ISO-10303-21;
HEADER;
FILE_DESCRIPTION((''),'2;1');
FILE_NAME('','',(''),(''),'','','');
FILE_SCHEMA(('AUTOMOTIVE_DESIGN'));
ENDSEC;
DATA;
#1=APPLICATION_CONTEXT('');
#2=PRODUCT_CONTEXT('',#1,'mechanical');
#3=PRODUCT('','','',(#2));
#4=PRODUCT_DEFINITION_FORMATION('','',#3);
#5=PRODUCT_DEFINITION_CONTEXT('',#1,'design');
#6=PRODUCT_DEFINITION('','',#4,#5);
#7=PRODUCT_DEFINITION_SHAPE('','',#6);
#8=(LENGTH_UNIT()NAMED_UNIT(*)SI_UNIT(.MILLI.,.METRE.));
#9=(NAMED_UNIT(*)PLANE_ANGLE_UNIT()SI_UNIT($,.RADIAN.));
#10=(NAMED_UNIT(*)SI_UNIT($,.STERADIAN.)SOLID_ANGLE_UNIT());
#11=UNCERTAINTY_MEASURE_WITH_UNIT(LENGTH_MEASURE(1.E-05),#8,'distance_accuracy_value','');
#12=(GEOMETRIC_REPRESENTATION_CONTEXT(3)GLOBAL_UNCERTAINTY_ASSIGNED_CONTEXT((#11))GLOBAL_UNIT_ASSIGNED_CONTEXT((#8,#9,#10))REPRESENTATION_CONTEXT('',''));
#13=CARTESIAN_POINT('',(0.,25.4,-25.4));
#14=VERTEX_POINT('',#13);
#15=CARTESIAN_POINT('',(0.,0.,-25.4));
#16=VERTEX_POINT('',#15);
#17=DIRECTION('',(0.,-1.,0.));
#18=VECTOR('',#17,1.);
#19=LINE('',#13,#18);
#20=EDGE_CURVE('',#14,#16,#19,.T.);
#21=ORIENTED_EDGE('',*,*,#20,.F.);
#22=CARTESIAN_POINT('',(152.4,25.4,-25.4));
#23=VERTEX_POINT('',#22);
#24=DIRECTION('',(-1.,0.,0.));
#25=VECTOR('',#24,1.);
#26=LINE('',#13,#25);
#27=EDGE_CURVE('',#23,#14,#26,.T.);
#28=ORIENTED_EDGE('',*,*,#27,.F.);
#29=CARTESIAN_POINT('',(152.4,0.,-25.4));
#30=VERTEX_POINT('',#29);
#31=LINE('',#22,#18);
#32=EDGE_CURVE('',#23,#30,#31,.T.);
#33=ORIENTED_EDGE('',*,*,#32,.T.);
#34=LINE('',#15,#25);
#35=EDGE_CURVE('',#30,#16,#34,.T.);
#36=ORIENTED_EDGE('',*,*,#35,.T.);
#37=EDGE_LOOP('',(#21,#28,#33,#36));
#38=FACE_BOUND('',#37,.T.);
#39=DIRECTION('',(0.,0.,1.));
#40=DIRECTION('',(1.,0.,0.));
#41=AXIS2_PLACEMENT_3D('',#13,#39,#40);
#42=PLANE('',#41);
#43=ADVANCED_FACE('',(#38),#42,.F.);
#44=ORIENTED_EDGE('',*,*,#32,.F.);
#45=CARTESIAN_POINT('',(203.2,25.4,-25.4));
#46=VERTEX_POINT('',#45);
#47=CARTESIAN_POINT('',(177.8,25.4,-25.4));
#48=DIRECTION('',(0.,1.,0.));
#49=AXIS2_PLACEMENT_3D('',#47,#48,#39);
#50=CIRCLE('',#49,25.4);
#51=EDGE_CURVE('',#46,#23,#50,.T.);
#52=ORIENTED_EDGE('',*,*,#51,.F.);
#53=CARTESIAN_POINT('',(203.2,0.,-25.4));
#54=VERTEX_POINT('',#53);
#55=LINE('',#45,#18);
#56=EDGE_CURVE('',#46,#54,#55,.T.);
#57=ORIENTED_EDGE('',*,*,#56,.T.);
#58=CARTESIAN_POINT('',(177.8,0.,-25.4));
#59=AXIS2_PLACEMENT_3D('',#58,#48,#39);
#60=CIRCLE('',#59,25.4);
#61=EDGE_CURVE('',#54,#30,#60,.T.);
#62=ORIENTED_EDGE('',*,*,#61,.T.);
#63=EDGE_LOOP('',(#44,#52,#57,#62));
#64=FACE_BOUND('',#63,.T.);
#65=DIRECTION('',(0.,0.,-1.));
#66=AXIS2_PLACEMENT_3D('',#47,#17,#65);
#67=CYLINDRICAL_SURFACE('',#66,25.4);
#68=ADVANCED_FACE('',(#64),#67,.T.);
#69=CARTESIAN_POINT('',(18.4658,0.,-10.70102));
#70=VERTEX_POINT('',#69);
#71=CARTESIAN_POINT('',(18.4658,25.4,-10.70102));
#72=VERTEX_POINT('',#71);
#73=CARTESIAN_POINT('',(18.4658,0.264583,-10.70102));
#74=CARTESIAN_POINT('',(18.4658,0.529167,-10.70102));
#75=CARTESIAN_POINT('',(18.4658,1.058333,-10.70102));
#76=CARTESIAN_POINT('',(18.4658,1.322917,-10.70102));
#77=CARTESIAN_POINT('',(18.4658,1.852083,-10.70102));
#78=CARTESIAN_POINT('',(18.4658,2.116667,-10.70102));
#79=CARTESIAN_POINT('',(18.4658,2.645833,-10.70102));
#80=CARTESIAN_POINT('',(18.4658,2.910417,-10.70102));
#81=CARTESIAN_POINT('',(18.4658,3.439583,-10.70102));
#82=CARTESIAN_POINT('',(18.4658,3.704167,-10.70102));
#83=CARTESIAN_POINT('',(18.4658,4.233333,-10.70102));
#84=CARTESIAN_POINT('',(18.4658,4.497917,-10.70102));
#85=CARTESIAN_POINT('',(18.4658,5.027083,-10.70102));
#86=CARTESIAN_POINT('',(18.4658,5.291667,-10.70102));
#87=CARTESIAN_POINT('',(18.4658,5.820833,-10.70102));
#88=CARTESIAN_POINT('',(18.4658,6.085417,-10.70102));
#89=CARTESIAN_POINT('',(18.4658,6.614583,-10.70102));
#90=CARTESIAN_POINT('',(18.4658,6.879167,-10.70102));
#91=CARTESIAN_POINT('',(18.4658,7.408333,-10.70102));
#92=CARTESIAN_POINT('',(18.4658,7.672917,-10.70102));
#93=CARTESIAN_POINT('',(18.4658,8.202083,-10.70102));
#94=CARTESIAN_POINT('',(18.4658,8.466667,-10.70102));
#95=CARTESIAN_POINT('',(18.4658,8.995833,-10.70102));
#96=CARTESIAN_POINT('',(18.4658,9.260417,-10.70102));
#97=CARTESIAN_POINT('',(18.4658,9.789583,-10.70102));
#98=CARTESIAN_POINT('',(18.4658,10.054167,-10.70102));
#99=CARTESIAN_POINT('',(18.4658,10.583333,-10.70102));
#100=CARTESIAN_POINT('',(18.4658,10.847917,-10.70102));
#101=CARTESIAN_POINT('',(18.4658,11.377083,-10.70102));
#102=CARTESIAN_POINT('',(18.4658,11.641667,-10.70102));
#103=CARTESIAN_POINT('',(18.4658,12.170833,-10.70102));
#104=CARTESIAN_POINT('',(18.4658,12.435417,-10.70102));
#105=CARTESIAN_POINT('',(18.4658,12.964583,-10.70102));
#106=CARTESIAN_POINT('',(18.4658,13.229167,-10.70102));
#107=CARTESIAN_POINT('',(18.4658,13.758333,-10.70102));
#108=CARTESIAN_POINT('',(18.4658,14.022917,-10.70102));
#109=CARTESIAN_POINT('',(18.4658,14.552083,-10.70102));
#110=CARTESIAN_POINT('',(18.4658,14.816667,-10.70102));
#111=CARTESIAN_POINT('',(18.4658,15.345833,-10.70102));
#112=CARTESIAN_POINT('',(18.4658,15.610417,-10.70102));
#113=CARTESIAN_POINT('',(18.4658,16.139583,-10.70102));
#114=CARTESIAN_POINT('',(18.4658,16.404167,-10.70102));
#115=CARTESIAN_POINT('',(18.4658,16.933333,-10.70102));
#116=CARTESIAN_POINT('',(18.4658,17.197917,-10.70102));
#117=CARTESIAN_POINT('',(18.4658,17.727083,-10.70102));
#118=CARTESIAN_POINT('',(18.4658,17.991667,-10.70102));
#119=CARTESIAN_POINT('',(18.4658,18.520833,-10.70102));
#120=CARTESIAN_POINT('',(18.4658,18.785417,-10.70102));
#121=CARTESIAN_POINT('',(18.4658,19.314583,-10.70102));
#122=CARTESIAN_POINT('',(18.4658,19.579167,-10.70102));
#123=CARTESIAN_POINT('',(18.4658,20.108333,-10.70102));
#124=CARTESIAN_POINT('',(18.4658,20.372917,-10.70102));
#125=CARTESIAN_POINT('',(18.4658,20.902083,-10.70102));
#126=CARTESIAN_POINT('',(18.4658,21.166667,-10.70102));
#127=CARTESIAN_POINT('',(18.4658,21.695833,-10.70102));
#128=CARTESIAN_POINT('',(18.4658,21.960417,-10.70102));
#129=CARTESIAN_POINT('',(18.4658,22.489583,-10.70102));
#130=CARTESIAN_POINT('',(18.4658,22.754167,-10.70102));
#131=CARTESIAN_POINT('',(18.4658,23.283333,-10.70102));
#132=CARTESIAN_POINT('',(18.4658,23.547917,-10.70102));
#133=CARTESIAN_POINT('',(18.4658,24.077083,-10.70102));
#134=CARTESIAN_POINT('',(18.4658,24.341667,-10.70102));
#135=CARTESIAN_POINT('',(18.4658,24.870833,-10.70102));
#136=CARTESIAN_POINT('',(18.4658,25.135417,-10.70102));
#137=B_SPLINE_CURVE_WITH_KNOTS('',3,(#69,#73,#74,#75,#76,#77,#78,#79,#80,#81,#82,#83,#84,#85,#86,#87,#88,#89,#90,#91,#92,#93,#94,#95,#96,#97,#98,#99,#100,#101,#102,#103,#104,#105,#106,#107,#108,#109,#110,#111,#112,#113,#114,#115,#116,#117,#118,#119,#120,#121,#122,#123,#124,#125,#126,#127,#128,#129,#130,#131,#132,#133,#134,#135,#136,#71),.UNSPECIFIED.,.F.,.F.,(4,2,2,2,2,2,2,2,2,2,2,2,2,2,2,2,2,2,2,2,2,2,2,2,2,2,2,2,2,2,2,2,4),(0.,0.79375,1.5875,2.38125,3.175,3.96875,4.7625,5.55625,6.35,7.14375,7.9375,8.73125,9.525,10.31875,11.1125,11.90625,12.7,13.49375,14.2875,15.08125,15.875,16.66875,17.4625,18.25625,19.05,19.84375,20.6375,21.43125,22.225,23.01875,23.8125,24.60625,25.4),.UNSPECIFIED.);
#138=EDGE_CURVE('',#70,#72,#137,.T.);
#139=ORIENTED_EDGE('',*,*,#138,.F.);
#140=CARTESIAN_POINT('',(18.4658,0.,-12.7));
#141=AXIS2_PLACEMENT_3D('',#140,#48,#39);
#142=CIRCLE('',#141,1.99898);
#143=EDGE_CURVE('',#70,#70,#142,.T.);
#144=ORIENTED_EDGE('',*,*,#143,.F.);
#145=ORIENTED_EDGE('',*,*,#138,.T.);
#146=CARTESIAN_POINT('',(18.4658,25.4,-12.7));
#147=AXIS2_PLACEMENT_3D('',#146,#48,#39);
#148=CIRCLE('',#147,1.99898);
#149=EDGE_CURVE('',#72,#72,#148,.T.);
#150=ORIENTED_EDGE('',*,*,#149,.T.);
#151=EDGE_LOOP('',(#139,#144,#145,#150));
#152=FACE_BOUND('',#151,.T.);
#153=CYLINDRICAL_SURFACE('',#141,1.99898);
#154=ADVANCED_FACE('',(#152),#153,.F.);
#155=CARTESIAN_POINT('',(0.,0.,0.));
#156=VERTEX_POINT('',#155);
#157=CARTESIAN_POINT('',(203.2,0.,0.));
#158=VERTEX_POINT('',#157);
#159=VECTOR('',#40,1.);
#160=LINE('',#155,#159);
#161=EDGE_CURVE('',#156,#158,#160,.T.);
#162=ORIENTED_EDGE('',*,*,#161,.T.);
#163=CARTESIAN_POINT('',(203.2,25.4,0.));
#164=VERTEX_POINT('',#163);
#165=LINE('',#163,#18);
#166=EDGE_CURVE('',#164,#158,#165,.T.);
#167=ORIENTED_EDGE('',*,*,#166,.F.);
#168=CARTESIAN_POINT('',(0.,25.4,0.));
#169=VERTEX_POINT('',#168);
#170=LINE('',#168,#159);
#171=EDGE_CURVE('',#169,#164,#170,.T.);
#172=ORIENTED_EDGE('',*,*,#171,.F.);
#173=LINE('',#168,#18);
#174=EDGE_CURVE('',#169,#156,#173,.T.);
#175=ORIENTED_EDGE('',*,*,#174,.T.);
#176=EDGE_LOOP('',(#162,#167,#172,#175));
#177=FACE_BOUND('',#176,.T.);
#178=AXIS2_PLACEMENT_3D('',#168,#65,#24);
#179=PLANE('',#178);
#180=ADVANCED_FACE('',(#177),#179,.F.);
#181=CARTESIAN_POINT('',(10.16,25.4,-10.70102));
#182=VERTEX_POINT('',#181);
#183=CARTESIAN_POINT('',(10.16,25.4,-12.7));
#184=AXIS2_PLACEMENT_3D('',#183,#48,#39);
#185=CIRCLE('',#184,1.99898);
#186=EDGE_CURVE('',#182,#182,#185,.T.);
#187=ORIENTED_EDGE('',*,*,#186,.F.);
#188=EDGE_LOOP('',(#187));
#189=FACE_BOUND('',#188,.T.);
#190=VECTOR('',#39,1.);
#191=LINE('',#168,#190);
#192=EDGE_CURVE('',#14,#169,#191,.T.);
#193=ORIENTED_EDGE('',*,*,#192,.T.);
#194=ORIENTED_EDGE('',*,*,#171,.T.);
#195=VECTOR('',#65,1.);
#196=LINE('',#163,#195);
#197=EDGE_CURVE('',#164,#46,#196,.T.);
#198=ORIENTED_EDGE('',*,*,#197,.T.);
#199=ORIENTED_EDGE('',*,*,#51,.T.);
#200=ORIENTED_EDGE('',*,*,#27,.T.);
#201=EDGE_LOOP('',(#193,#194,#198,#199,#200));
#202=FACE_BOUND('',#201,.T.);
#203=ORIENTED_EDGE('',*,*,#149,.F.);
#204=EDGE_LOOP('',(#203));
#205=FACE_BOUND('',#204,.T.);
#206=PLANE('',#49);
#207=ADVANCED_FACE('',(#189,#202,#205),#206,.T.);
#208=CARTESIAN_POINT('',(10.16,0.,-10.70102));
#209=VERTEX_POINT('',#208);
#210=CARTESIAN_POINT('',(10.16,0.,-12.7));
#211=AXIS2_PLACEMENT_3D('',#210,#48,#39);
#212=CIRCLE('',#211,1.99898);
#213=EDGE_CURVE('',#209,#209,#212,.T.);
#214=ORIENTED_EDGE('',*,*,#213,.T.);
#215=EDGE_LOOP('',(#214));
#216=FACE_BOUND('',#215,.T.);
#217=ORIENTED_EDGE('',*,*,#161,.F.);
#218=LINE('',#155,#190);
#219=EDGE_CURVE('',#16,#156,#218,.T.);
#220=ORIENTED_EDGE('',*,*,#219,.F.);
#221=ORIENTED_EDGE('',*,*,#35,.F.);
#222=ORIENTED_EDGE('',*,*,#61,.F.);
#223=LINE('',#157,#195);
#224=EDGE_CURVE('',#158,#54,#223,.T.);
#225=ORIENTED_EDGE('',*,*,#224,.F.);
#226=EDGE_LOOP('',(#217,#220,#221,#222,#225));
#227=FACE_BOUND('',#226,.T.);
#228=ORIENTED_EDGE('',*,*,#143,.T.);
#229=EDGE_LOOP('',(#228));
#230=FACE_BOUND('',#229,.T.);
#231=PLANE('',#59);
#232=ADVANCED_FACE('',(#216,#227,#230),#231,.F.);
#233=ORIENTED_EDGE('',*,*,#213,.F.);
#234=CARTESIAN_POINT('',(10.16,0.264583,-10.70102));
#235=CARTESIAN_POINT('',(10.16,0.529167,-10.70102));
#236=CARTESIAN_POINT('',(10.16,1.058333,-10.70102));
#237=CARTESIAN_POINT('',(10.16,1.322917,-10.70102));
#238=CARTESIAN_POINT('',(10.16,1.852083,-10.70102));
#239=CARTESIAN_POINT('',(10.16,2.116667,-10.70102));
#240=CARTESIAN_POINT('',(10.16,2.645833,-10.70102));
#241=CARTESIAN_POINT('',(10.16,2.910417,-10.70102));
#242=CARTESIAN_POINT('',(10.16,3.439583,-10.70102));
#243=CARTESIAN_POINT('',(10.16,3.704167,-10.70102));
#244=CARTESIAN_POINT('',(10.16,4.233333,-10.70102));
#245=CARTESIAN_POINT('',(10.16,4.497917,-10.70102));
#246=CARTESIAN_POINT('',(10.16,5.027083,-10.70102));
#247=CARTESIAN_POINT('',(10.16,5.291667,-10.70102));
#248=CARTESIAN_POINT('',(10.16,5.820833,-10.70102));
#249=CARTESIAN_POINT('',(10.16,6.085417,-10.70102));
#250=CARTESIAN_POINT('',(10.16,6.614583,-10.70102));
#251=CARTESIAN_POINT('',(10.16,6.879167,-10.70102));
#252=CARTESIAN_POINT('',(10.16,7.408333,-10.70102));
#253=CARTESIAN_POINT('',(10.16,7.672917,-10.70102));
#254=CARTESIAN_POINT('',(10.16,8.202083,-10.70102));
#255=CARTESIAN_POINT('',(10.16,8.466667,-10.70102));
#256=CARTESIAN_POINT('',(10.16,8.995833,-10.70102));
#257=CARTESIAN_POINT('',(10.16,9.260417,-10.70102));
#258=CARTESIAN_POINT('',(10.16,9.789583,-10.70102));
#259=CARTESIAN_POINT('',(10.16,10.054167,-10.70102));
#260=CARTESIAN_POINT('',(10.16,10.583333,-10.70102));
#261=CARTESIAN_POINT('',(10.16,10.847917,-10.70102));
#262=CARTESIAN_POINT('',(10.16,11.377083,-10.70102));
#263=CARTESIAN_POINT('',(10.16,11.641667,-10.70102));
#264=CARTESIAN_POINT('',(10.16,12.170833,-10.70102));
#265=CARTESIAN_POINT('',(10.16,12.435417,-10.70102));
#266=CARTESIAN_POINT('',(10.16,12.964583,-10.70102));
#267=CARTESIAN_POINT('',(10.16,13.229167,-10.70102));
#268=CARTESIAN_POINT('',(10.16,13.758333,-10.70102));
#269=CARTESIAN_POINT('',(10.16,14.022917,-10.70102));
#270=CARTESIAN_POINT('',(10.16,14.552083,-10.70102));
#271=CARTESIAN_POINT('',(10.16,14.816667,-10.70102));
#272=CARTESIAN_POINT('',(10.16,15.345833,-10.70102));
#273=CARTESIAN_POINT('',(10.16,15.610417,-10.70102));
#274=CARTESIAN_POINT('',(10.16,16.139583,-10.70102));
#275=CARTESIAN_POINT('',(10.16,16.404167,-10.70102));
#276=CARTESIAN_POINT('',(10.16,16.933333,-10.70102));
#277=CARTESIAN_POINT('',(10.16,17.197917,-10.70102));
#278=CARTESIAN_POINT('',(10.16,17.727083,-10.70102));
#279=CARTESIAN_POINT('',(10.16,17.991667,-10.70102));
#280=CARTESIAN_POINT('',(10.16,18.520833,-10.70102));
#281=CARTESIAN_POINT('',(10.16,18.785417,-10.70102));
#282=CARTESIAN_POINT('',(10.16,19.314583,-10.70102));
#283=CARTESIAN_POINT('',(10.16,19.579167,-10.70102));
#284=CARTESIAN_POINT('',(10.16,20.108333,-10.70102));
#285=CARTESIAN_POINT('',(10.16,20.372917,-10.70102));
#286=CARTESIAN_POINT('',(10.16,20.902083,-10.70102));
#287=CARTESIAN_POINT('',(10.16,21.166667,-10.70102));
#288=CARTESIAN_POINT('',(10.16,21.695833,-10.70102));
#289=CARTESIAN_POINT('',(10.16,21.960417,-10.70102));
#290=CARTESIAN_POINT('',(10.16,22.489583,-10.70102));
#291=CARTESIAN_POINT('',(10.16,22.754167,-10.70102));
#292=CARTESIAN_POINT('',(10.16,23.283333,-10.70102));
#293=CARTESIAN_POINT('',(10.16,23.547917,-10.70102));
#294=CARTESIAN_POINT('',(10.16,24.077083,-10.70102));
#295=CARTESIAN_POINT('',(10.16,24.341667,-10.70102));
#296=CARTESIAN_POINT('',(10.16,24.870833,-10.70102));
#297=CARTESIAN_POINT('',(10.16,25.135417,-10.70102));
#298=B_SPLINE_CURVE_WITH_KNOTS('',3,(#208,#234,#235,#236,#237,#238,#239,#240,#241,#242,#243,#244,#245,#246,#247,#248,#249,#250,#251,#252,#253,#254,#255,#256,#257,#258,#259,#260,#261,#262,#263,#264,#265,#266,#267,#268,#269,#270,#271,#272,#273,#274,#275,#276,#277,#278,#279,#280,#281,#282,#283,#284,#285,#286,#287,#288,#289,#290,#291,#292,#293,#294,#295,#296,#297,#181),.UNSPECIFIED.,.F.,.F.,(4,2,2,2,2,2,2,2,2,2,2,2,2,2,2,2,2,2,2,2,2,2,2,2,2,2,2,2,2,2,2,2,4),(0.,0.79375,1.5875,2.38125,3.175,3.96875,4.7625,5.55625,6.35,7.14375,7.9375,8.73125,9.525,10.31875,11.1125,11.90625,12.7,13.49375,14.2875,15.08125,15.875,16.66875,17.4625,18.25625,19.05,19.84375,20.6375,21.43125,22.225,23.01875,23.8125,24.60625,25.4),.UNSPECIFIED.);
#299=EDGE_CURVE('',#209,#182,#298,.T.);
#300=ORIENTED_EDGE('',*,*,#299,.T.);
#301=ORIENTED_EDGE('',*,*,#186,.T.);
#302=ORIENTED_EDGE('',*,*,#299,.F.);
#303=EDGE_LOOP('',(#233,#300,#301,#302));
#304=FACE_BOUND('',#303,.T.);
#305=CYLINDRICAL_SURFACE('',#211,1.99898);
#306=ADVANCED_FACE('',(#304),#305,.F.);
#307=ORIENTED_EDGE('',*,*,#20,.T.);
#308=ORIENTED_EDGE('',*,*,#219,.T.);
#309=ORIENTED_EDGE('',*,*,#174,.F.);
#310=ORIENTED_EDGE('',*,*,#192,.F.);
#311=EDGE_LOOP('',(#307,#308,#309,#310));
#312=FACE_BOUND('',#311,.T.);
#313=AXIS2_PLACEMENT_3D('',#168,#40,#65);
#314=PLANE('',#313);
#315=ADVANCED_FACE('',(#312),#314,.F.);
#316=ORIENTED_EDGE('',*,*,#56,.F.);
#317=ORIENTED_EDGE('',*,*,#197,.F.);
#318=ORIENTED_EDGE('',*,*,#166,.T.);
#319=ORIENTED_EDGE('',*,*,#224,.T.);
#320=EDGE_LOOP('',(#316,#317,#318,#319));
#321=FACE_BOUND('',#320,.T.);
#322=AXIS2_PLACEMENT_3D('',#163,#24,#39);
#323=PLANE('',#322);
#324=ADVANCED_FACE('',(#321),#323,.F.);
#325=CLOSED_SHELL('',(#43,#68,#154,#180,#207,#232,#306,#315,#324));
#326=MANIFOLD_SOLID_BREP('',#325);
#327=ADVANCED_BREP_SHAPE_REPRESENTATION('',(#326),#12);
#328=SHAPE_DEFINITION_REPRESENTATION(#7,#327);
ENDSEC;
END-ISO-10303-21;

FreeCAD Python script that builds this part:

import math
import FreeCAD as App
import Part
import Sketcher
from FreeCAD import Vector
Q = App.Units.Quantity

doc = App.newDocument("Part")
params = doc.addObject("Spreadsheet::Sheet", "Params")
for row, (alias, value) in enumerate([
    ("sketch1_radius", "1 in"),
    ("sketch1_width", "8 in"),
    ("sketch1_height", "1 in"),
    ("pad1_length", "1 in"),
    ("pocket1_length", "1 in"),
], start=1):
    params.set(f"A{row}", alias)
    params.set(f"B{row}", "=" + value)
    params.setAlias(f"B{row}", alias)

body = doc.addObject("PartDesign::Body", "Body")

# Sketch on XZ plane
sketch1 = doc.addObject("Sketcher::SketchObject", "Sketch")
body.addObject(sketch1)
sketch1.AttachmentSupport = (doc.XZ_Plane, [""])
sketch1.MapMode = "FlatFace"
sketch1.addGeometry([
    Part.LineSegment(Vector(0, 0, 0), Vector(203, 0, 0)),  # 0
    Part.LineSegment(Vector(203, 0, 0), Vector(203, -25, 0)),  # 1
    Part.ArcOfCircle(Part.Circle(Vector(178, -25, 0), Vector(0, 0, 1), 25), math.radians(180), math.radians(360)),  # 2
    Part.LineSegment(Vector(152, -25, 0), Vector(0, -25, 0)),  # 3
    Part.LineSegment(Vector(0, -25, 0), Vector(0, 0, 0)),  # 4
], False)
sketch1.addConstraint([
    Sketcher.Constraint("Coincident", 0, 2, 1, 1),
    Sketcher.Constraint("Tangent", 1, 2, 2, 2),
    Sketcher.Constraint("Coincident", 2, 1, 3, 1),
    Sketcher.Constraint("Coincident", 3, 2, 4, 1),
    Sketcher.Constraint("Coincident", 4, 2, 0, 1),
    Sketcher.Constraint("Horizontal", 0),
    Sketcher.Constraint("Vertical", 1),
    Sketcher.Constraint("Horizontal", 3),
    Sketcher.Constraint("Vertical", 4),
    Sketcher.Constraint("Coincident", 4, 2, -1, 1),
    Sketcher.Constraint("Horizontal", 1, 2, 2, 1),
    Sketcher.Constraint("Radius", 2, Q("1 in")),
    Sketcher.Constraint("DistanceX", 0, 1, 0, 2, Q("8 in")),
    Sketcher.Constraint("DistanceY", 1, 2, 1, 1, Q("1 in")),
])
sketch1.setExpression("Constraints[11]", "Params.sketch1_radius")
sketch1.setExpression("Constraints[12]", "Params.sketch1_width")
sketch1.setExpression("Constraints[13]", "Params.sketch1_height")
pad1 = doc.addObject("PartDesign::Pad", "Pad")
body.addObject(pad1)
pad1.Profile = sketch1
pad1.setExpression("Length", "Params.pad1_length")
pad1.Reversed = True

# Sketch on XZ plane
sketch2 = doc.addObject("Sketcher::SketchObject", "Sketch001")
body.addObject(sketch2)
sketch2.AttachmentSupport = (doc.XZ_Plane, [""])
sketch2.MapMode = "FlatFace"
sketch2.AttachmentOffset = App.Placement(Vector(0, 0, -1 * 25.4), App.Rotation())
sketch2.addGeometry([
    Part.Circle(Vector(10.2, -12.7, 0), Vector(0, 0, 1), 2),
    Part.Circle(Vector(18.5, -12.7, 0), Vector(0, 0, 1), 2),
], False)
sketch2.addConstraint([
    Sketcher.Constraint("Equal", 0, 1),
    Sketcher.Constraint("Horizontal", 0, 3, 1, 3),
    Sketcher.Constraint("Diameter", 0, Q("0.1574 in")),
    Sketcher.Constraint("DistanceX", -1, 1, 0, 3, Q("0.4 in")),
    Sketcher.Constraint("DistanceY", 0, 3, -1, 1, Q("0.5 in")),
    Sketcher.Constraint("DistanceX", -1, 1, 1, 3, Q("0.727 in")),
])
pocket1 = doc.addObject("PartDesign::Pocket", "Pocket")
body.addObject(pocket1)
pocket1.Profile = sketch2
pocket1.setExpression("Length", "Params.pocket1_length")
pocket1.Reversed = True

doc.recompute()
